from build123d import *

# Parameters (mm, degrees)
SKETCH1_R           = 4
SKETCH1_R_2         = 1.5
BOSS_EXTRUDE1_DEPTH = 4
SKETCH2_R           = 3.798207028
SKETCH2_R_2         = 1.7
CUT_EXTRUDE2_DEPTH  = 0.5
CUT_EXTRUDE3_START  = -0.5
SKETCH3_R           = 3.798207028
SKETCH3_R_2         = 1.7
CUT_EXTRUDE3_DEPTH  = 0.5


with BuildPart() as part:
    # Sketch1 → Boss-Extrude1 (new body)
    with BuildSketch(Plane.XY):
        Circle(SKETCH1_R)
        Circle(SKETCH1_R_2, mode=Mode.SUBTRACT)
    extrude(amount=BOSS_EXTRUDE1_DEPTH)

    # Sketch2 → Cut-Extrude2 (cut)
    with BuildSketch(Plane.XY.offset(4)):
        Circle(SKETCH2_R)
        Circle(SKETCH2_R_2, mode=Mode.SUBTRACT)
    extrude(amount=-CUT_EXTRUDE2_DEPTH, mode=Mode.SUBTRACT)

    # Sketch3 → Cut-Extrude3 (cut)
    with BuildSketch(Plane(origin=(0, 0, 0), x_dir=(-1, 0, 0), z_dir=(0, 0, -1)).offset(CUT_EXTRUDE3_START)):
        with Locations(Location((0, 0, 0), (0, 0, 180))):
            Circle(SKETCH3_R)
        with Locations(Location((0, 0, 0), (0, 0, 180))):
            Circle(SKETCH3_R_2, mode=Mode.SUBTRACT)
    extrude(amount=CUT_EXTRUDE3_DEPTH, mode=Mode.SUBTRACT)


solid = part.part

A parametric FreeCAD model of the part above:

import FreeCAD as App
import Part
import Sketcher
Q = App.Units.Quantity

doc = App.newDocument("Part")
params = doc.addObject("Spreadsheet::Sheet", "Params")
for row, (alias, value) in enumerate([
    ("sketch1_diameter", "8 mm"),
    ("sketch1_diameter2", "3 mm"),
    ("pad1_length", "4 mm"),
    ("sketch2_diameter", "3.4 mm"),
    ("pocket1_length", "0.5 mm"),
    ("sketch3_diameter", "3.4 mm"),
    ("pocket2_length", "0.5 mm"),
], start=1):
    params.set(f"A{row}", alias)
    params.set(f"B{row}", "=" + value)
    params.setAlias(f"B{row}", alias)

body = doc.addObject("PartDesign::Body", "Body")

# Sketch on XY plane
sketch1 = body.newObject("Sketcher::SketchObject", "Sketch")
sketch1.AttachmentSupport = (doc.getObject("XY_Plane"), [""])
sketch1.MapMode = "FlatFace"
sketch1.addGeometry([
    Part.Circle(App.Vector(0, 0, 0), App.Vector(0, 0, 1), 4),
    Part.Circle(App.Vector(0, 0, 0), App.Vector(0, 0, 1), 1.5),
], False)
sketch1.addConstraint([
    Sketcher.Constraint("Coincident", 0, 3, -1, 1),
    Sketcher.Constraint("Coincident", 1, 3, -1, 1),
    Sketcher.Constraint("Diameter", 0, Q("8 mm")),
    Sketcher.Constraint("Diameter", 1, Q("3 mm")),
])
sketch1.setExpression("Constraints[2]", "Params.sketch1_diameter")
sketch1.setExpression("Constraints[3]", "Params.sketch1_diameter2")
pad1 = body.newObject("PartDesign::Pad", "Pad")
pad1.Profile = sketch1
pad1.setExpression("Length", "Params.pad1_length")

# Sketch on XY plane
sketch2 = body.newObject("Sketcher::SketchObject", "Sketch001")
sketch2.AttachmentSupport = (doc.getObject("XY_Plane"), [""])
sketch2.MapMode = "FlatFace"
sketch2.AttachmentOffset = App.Placement(App.Vector(0, 0, 4), App.Rotation())
sketch2.addGeometry([
    Part.Circle(App.Vector(0, 0, 0), App.Vector(0, 0, 1), 3.8),
    Part.Circle(App.Vector(0, 0, 0), App.Vector(0, 0, 1), 1.7),
], False)
sketch2.addConstraint([
    Sketcher.Constraint("Coincident", 0, 3, -1, 1),
    Sketcher.Constraint("Coincident", 1, 3, -1, 1),
    Sketcher.Constraint("Diameter", 1, Q("3.4 mm")),
    Sketcher.Constraint("Diameter", 0, Q("7.596414 mm")),
])
sketch2.setExpression("Constraints[2]", "Params.sketch2_diameter")
pocket1 = body.newObject("PartDesign::Pocket", "Pocket")
pocket1.Profile = sketch2
pocket1.setExpression("Length", "Params.pocket1_length")

# Sketch on XY plane
sketch3 = body.newObject("Sketcher::SketchObject", "Sketch002")
sketch3.AttachmentSupport = (doc.getObject("XY_Plane"), [""])
sketch3.MapMode = "FlatFace"
sketch3.AttachmentOffset = App.Placement(App.Vector(0, 0, 0.5), App.Rotation())
sketch3.addGeometry([
    Part.Circle(App.Vector(0, 0, 0), App.Vector(0, 0, 1), 3.8),
    Part.Circle(App.Vector(0, 0, 0), App.Vector(0, 0, 1), 1.7),
], False)
sketch3.addConstraint([
    Sketcher.Constraint("Coincident", 0, 3, -1, 1),
    Sketcher.Constraint("Coincident", 1, 3, -1, 1),
    Sketcher.Constraint("Diameter", 1, Q("3.4 mm")),
    Sketcher.Constraint("Diameter", 0, Q("7.596414 mm")),
])
sketch3.setExpression("Constraints[2]", "Params.sketch3_diameter")
pocket2 = body.newObject("PartDesign::Pocket", "Pocket001")
pocket2.Profile = sketch3
pocket2.setExpression("Length", "Params.pocket2_length")

doc.recompute()
